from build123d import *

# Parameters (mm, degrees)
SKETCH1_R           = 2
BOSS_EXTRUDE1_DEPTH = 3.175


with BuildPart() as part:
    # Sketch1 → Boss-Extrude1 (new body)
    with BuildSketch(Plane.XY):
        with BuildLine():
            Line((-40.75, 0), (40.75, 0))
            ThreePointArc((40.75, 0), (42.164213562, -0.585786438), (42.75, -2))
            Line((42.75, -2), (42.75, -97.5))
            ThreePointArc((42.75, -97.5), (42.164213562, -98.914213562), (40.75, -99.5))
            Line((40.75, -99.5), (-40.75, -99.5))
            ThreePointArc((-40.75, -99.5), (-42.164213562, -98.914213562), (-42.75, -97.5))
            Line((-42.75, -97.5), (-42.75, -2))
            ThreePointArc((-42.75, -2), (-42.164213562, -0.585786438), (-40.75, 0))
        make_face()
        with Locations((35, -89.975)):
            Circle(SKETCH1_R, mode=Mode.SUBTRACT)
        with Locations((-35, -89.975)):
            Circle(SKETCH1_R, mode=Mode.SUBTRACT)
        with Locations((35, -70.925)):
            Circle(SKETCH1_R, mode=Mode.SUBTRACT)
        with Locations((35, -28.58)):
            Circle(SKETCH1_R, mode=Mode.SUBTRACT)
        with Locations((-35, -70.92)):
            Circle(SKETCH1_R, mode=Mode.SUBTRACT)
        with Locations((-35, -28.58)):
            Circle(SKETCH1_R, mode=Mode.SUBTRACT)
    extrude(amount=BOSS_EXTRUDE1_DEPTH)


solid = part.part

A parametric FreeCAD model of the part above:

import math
import FreeCAD as App
import Part
import Sketcher

doc = App.newDocument("Part")
body = doc.addObject("PartDesign::Body", "Body")

# Sketch on XY plane
sketch1 = doc.addObject("Sketcher::SketchObject", "Sketch")
body.addObject(sketch1)
sketch1.AttachmentSupport = (doc.XY_Plane, [""])
sketch1.MapMode = "FlatFace"
sketch1.addGeometry(Part.LineSegment(App.Vector(40.8, 0, 0), App.Vector(-40.8, 0, 0)), False)
sketch1.addGeometry(Part.ArcOfCircle(Part.Circle(App.Vector(-40.7, -2, 0), App.Vector(0, 0, 1), 2), math.radians(90), math.radians(180)), False)
sketch1.addGeometry(Part.LineSegment(App.Vector(-42.8, -2, 0), App.Vector(-42.8, -97.5, 0)), False)
sketch1.addGeometry(Part.ArcOfCircle(Part.Circle(App.Vector(-40.7, -97.5, 0), App.Vector(0, 0, 1), 2), math.radians(-180), math.radians(-90)), False)
sketch1.addGeometry(Part.LineSegment(App.Vector(-40.8, -99.5, 0), App.Vector(40.8, -99.5, 0)), False)
sketch1.addGeometry(Part.ArcOfCircle(Part.Circle(App.Vector(40.7, -97.5, 0), App.Vector(0, 0, 1), 2), math.radians(-90), math.radians(0)), False)
sketch1.addGeometry(Part.LineSegment(App.Vector(42.8, -97.5, 0), App.Vector(42.8, -2, 0)), False)
sketch1.addGeometry(Part.ArcOfCircle(Part.Circle(App.Vector(40.7, -2, 0), App.Vector(0, 0, 1), 2), math.radians(0), math.radians(90)), False)
sketch1.addGeometry(Part.Circle(App.Vector(35, -90, 0), App.Vector(0, 0, 1), 2), False)
sketch1.addGeometry(Part.Circle(App.Vector(35, -70.9, 0), App.Vector(0, 0, 1), 2), False)
sketch1.addGeometry(Part.Circle(App.Vector(-35, -90, 0), App.Vector(0, 0, 1), 2), False)
sketch1.addGeometry(Part.Circle(App.Vector(-35, -70.9, 0), App.Vector(0, 0, 1), 2), False)
sketch1.addGeometry(Part.Circle(App.Vector(35, -28.6, 0), App.Vector(0, 0, 1), 2), False)
sketch1.addGeometry(Part.Circle(App.Vector(-35, -28.6, 0), App.Vector(0, 0, 1), 2), False)
sketch1.addConstraint(Sketcher.Constraint("Tangent", 0, 2, 1, 1))
sketch1.addConstraint(Sketcher.Constraint("Tangent", 1, 2, 2, 1))
sketch1.addConstraint(Sketcher.Constraint("Tangent", 2, 2, 3, 1))
sketch1.addConstraint(Sketcher.Constraint("Tangent", 3, 2, 4, 1))
sketch1.addConstraint(Sketcher.Constraint("Tangent", 4, 2, 5, 1))
sketch1.addConstraint(Sketcher.Constraint("Tangent", 5, 2, 6, 1))
sketch1.addConstraint(Sketcher.Constraint("Tangent", 6, 2, 7, 1))
sketch1.addConstraint(Sketcher.Constraint("Tangent", 7, 2, 0, 1))
sketch1.addConstraint(Sketcher.Constraint("Horizontal", 0))
sketch1.addConstraint(Sketcher.Constraint("Vertical", 2))
sketch1.addConstraint(Sketcher.Constraint("Horizontal", 4))
sketch1.addConstraint(Sketcher.Constraint("Vertical", 6))
sketch1.addConstraint(Sketcher.Constraint("Equal", 1, 3))
sketch1.addConstraint(Sketcher.Constraint("Equal", 3, 5))
sketch1.addConstraint(Sketcher.Constraint("Equal", 5, 7))
sketch1.addConstraint(Sketcher.Constraint("Equal", 7, 8))
sketch1.addConstraint(Sketcher.Constraint("Equal", 8, 9))
sketch1.addConstraint(Sketcher.Constraint("Equal", 9, 10))
sketch1.addConstraint(Sketcher.Constraint("Equal", 10, 11))
sketch1.addConstraint(Sketcher.Constraint("Equal", 11, 12))
sketch1.addConstraint(Sketcher.Constraint("Equal", 12, 13))
sketch1.addConstraint(Sketcher.Constraint("Symmetric", 0, 2, 7, 2, -1, 1))
sketch1.addConstraint(Sketcher.Constraint("Symmetric", 8, 3, 10, 3, -2))
sketch1.addConstraint(Sketcher.Constraint("Symmetric", 12, 3, 13, 3, -2))
sketch1.addConstraint(Sketcher.Constraint("Vertical", 8, 3, 9, 3))
sketch1.addConstraint(Sketcher.Constraint("Vertical", 10, 3, 11, 3))
sketch1.addConstraint(Sketcher.Constraint("Vertical", 9, 3, 12, 3))
sketch1.addConstraint(Sketcher.Constraint("Diameter", 8, 4.0))
sketch1.addConstraint(Sketcher.Constraint("DistanceX", 0, 2, 0, 1, 81.5))
sketch1.addConstraint(Sketcher.Constraint("DistanceY", 2, 2, 2, 1, 95.5))
sketch1.addConstraint(Sketcher.Constraint("DistanceX", -1, 1, 8, 3, 35.0))
sketch1.addConstraint(Sketcher.Constraint("DistanceY", 11, 3, -1, 1, 70.92))
sketch1.addConstraint(Sketcher.Constraint("DistanceY", 12, 3, -1, 1, 28.58))
sketch1.addConstraint(Sketcher.Constraint("DistanceY", 8, 3, 9, 3, 19.05))
sketch1.addConstraint(Sketcher.Constraint("DistanceY", 8, 3, -1, 1, 89.975))
pad1 = doc.addObject("PartDesign::Pad", "Pad")
body.addObject(pad1)
pad1.Profile = sketch1
pad1.Length = 3.175

doc.recompute()
